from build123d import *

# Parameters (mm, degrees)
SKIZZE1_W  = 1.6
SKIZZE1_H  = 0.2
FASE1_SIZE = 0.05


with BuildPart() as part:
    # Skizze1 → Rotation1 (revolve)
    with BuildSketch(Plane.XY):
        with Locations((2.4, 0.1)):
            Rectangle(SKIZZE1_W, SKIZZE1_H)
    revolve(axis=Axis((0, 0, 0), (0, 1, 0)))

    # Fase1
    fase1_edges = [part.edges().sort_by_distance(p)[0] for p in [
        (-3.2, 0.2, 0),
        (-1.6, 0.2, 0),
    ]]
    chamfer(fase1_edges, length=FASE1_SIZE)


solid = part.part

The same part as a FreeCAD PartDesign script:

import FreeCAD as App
import Part
import Sketcher


def edges_at(feature, points):
    """Names of the edges that pass closest to the given points."""
    edges = feature.Shape.Edges
    near = lambda p: min(range(len(edges)), key=lambda i: edges[i].distToShape(Part.Vertex(*p))[0])
    return sorted({f"Edge{near(p) + 1}" for p in points})


def add_polygon(sketch, points):
    """Adds a closed chain of lines whose ends are joined by coincident constraints."""
    first, n = sketch.GeometryCount, len(points)
    for a, b in zip(points, points[1:] + points[:1]):
        sketch.addGeometry(Part.LineSegment(App.Vector(*a, 0), App.Vector(*b, 0)), False)
    for i in range(n):
        sketch.addConstraint(Sketcher.Constraint("Coincident", first + i, 2, first + (i + 1) % n, 1))

doc = App.newDocument("Part")
body = doc.addObject("PartDesign::Body", "Body")

sketch1 = body.newObject("Sketcher::SketchObject", "Sketch")
sketch1.AttachmentSupport = (doc.getObject("XY_Plane"), [""])
sketch1.MapMode = "FlatFace"
add_polygon(sketch1, [(1.6, 0.2), (1.6, 0), (3.2, 0), (3.2, 0.2)])
sketch1.addConstraint(Sketcher.Constraint("Vertical", 0))
sketch1.addConstraint(Sketcher.Constraint("Horizontal", 1))
sketch1.addConstraint(Sketcher.Constraint("Vertical", 2))
sketch1.addConstraint(Sketcher.Constraint("Horizontal", 3))
sketch1.addConstraint(Sketcher.Constraint("PointOnObject", 0, 2, -1))
sketch1.addConstraint(Sketcher.Constraint("DistanceX", 1, 1, 1, 2, 1.6))
sketch1.addConstraint(Sketcher.Constraint("DistanceY", 0, 2, 0, 1, 0.2))
sketch1.addConstraint(Sketcher.Constraint("DistanceX", -1, 1, 0, 2, 1.6))
revolution = body.newObject("PartDesign::Revolution", "Revolution")
revolution.Profile = sketch1
revolution.ReferenceAxis = (sketch1, ["V_Axis"])
revolution.Angle = 360
doc.recompute()

chamfer = body.newObject("PartDesign::Chamfer", "Chamfer")
chamfer.Base = (revolution, edges_at(revolution, [(-3.2, 0.2, 0), (-1.6, 0.2, 0)]))
chamfer.Size = 0.05

doc.recompute()
